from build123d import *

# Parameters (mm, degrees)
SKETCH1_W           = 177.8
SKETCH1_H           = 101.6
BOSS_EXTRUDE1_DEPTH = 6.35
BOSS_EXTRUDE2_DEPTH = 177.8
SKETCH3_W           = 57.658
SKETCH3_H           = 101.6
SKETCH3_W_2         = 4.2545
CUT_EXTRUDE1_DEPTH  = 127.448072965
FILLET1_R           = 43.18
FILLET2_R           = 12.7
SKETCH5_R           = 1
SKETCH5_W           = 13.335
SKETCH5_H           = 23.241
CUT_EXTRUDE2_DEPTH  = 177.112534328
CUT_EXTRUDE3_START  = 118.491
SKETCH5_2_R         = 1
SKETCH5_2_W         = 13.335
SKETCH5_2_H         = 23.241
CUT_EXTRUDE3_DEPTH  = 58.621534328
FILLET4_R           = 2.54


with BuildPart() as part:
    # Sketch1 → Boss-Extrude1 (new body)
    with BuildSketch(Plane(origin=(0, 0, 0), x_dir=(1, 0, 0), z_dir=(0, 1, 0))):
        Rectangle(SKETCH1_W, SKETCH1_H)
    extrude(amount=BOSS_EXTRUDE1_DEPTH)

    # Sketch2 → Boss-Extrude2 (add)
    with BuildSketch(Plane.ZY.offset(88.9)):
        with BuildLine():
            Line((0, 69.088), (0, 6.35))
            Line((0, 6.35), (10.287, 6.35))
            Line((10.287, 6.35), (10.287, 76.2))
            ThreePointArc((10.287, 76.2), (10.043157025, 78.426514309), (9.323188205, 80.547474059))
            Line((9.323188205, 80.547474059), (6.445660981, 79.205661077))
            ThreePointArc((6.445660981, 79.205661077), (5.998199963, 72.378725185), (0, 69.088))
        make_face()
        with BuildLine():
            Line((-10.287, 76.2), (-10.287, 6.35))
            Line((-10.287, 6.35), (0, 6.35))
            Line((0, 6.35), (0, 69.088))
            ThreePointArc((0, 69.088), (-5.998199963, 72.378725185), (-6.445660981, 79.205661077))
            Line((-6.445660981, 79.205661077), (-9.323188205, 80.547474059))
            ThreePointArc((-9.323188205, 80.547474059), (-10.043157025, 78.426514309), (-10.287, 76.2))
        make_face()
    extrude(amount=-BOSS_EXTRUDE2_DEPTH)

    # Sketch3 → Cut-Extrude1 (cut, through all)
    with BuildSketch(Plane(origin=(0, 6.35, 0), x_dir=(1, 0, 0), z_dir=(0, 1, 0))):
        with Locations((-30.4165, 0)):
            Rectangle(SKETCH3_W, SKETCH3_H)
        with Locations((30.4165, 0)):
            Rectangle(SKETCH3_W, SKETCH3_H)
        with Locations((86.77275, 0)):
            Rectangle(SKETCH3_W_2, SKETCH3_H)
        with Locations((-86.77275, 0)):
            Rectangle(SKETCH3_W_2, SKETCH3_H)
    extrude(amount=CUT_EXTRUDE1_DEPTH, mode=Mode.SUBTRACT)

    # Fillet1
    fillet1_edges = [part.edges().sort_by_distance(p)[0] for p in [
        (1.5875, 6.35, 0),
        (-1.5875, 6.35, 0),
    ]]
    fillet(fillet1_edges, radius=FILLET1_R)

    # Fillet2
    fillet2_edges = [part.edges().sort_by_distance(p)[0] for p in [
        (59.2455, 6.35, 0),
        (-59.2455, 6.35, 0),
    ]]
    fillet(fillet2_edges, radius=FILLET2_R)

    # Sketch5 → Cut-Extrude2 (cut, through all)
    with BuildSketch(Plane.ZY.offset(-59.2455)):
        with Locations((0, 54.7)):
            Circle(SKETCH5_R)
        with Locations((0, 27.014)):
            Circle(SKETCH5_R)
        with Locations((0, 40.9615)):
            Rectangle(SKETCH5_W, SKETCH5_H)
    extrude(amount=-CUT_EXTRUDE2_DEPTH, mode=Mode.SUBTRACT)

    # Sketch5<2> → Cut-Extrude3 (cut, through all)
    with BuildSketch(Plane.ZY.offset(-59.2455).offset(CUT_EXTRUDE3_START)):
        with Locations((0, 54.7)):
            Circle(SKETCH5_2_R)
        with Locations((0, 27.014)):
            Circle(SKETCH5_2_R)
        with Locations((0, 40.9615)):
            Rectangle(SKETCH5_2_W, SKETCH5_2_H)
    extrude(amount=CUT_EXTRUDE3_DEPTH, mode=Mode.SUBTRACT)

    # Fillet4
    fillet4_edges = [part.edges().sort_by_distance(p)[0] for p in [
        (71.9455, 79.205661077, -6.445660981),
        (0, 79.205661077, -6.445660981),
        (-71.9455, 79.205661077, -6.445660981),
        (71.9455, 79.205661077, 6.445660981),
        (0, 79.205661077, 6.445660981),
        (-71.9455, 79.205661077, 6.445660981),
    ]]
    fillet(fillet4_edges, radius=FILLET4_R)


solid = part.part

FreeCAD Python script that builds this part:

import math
import FreeCAD as App
import Part
import Sketcher
from FreeCAD import Vector
Q = App.Units.Quantity


def edges_at(feature, points):
    """Names of the edges that pass closest to the given points."""
    edges = feature.Shape.Edges
    near = lambda p: min(range(len(edges)), key=lambda i: edges[i].distToShape(Part.Vertex(*p))[0])
    return sorted({f"Edge{near(p) + 1}" for p in points})

doc = App.newDocument("Part")
params = doc.addObject("Spreadsheet::Sheet", "Params")
for row, (alias, value) in enumerate([
    ("sketch1_width", "7 in"),
    ("sketch1_height", "4 in"),
    ("pad1_length", "0.25 in"),
    ("sketch2_radius", "0.28 in"),
    ("sketch2_radius2", "0.405 in"),
    ("sketch2_width", "2.75 in"),
    ("pad2_length", "7 in"),
    ("sketch3_height", "4 in"),
    ("sketch3_width", "2.27 in"),
    ("fillet_radius", "1.7 in"),
    ("fillet2_radius", "0.5 in"),
    ("sketch4_width", "0.915 in"),
    ("sketch4_height", "0.525 in"),
    ("sketch5_width", "0.915 in"),
    ("sketch5_height", "0.525 in"),
    ("fillet3_radius", "0.1 in"),
], start=1):
    params.set(f"A{row}", alias)
    params.set(f"B{row}", "=" + value)
    params.setAlias(f"B{row}", alias)

body = doc.addObject("PartDesign::Body", "Body")

# Sketch on XZ plane
sketch1 = body.newObject("Sketcher::SketchObject", "Sketch")
sketch1.AttachmentSupport = (doc.getObject("XZ_Plane"), [""])
sketch1.MapMode = "FlatFace"
sketch1.addGeometry([
    Part.LineSegment(Vector(-88.9, -50.8, 0), Vector(-88.9, 50.8, 0)),
    Part.LineSegment(Vector(-88.9, 50.8, 0), Vector(88.9, 50.8, 0)),
    Part.LineSegment(Vector(88.9, 50.8, 0), Vector(88.9, -50.8, 0)),
    Part.LineSegment(Vector(88.9, -50.8, 0), Vector(-88.9, -50.8, 0)),
], False)
sketch1.addConstraint([
    Sketcher.Constraint("Coincident", 0, 2, 1, 1),
    Sketcher.Constraint("Coincident", 1, 2, 2, 1),
    Sketcher.Constraint("Coincident", 2, 2, 3, 1),
    Sketcher.Constraint("Coincident", 3, 2, 0, 1),
    Sketcher.Constraint("Vertical", 0),
    Sketcher.Constraint("Horizontal", 1),
    Sketcher.Constraint("Vertical", 2),
    Sketcher.Constraint("Horizontal", 3),
    Sketcher.Constraint("Symmetric", 0, 2, 2, 2, -1, 1),
    Sketcher.Constraint("DistanceX", 1, 1, 1, 2, Q("7 in")),
    Sketcher.Constraint("DistanceY", 0, 1, 0, 2, Q("4 in")),
])
sketch1.setExpression("Constraints[9]", "Params.sketch1_width")
sketch1.setExpression("Constraints[10]", "Params.sketch1_height")
pad1 = body.newObject("PartDesign::Pad", "Pad")
pad1.Profile = sketch1
pad1.setExpression("Length", "Params.pad1_length")
pad1.Reversed = True

# Sketch on YZ plane
sketch2 = body.newObject("Sketcher::SketchObject", "Sketch001")
sketch2.AttachmentSupport = (doc.getObject("YZ_Plane"), [""])
sketch2.MapMode = "FlatFace"
sketch2.AttachmentOffset = App.Placement(Vector(0, 0, -3.5 * 25.4), App.Rotation())
sketch2.addGeometry([
    Part.LineSegment(Vector(6.35, 10.287, 0), Vector(76.2, 10.287, 0)),  # 0
    Part.ArcOfCircle(Part.Circle(Vector(76.2, 0, 0), Vector(0, 0, 1), 10.287), math.radians(65), math.radians(90)),  # 1
    Part.LineSegment(Vector(80.547474, 9.323188, 0), Vector(79.205661, 6.445661, 0)),  # 2
    Part.ArcOfCircle(Part.Circle(Vector(76.2, 0, 0), Vector(0, 0, 1), 7.112), math.radians(65), math.radians(180)),  # 3
    Part.ArcOfCircle(Part.Circle(Vector(76.2, 0, 0), Vector(0, 0, 1), 7.112), math.radians(180), math.radians(295)),  # 4
    Part.LineSegment(Vector(79.205661, -6.445661, 0), Vector(80.547474, -9.323188, 0)),  # 5
    Part.ArcOfCircle(Part.Circle(Vector(76.2, 0, 0), Vector(0, 0, 1), 10.287), math.radians(-90), math.radians(-65)),  # 6
    Part.LineSegment(Vector(76.2, -10.287, 0), Vector(6.35, -10.287, 0)),  # 7
    Part.LineSegment(Vector(6.35, -10.287, 0), Vector(6.35, 10.287, 0)),  # 8
], False)
sketch2.addConstraint([
    Sketcher.Constraint("Tangent", 0, 2, 1, 2),
    Sketcher.Constraint("Coincident", 1, 1, 2, 1),
    Sketcher.Constraint("Coincident", 2, 2, 3, 1),
    Sketcher.Constraint("Tangent", 3, 2, 4, 1),
    Sketcher.Constraint("Coincident", 4, 2, 5, 1),
    Sketcher.Constraint("Coincident", 5, 2, 6, 2),
    Sketcher.Constraint("Tangent", 6, 1, 7, 1),
    Sketcher.Constraint("Coincident", 7, 2, 8, 1),
    Sketcher.Constraint("Coincident", 8, 2, 0, 1),
    Sketcher.Constraint("Horizontal", 0),
    Sketcher.Constraint("Horizontal", 7),
    Sketcher.Constraint("Vertical", 8),
    Sketcher.Constraint("Coincident", 3, 3, 1, 3),
    Sketcher.Constraint("Coincident", 6, 3, 1, 3),
    Sketcher.Constraint("Equal", 3, 4),
    Sketcher.Constraint("Equal", 1, 6),
    Sketcher.Constraint("Symmetric", 2, 2, 4, 2, -1),
    Sketcher.Constraint("PointOnObject", 3, 2, -1),
    Sketcher.Constraint("Vertical", 1, 1, 5, 2),
    Sketcher.Constraint("Radius", 3, Q("0.28 in")),
    Sketcher.Constraint("DistanceX", -1, 1, 1, 3, Q("3 in")),
    Sketcher.Constraint("Angle", 2, Q("-115 deg")),
    Sketcher.Constraint("Radius", 1, Q("0.405 in")),
    Sketcher.Constraint("DistanceX", 0, 1, 0, 2, Q("2.75 in")),
    Sketcher.Constraint("DistanceY", -1, 1, 1, 1, 9.323188),
])
sketch2.setExpression("Constraints[19]", "Params.sketch2_radius")
sketch2.setExpression("Constraints[22]", "Params.sketch2_radius2")
sketch2.setExpression("Constraints[23]", "Params.sketch2_width")
pad2 = body.newObject("PartDesign::Pad", "Pad001")
pad2.Profile = sketch2
pad2.setExpression("Length", "Params.pad2_length")

# Sketch on XZ plane
sketch3 = body.newObject("Sketcher::SketchObject", "Sketch002")
sketch3.AttachmentSupport = (doc.getObject("XZ_Plane"), [""])
sketch3.MapMode = "FlatFace"
sketch3.AttachmentOffset = App.Placement(Vector(0, 0, -0.25 * 25.4), App.Rotation())
sketch3.addGeometry([
    Part.LineSegment(Vector(-59.2455, -50.8, 0), Vector(-59.2455, 50.8, 0)),  # 0
    Part.LineSegment(Vector(-59.2455, 50.8, 0), Vector(-1.5875, 50.8, 0)),  # 1
    Part.LineSegment(Vector(-1.5875, 50.8, 0), Vector(-1.5875, -50.8, 0)),  # 2
    Part.LineSegment(Vector(-1.5875, -50.8, 0), Vector(-59.2455, -50.8, 0)),  # 3
    Part.LineSegment(Vector(1.5875, -50.8, 0), Vector(1.5875, 50.8, 0)),  # 4
    Part.LineSegment(Vector(1.5875, 50.8, 0), Vector(59.2455, 50.8, 0)),  # 5
    Part.LineSegment(Vector(59.2455, 50.8, 0), Vector(59.2455, -50.8, 0)),  # 6
    Part.LineSegment(Vector(59.2455, -50.8, 0), Vector(1.5875, -50.8, 0)),  # 7
    Part.LineSegment(Vector(84.6455, -50.8, 0), Vector(84.6455, 50.8, 0)),  # 8
    Part.LineSegment(Vector(84.6455, 50.8, 0), Vector(88.9, 50.8, 0)),  # 9
    Part.LineSegment(Vector(88.9, 50.8, 0), Vector(88.9, -50.8, 0)),  # 10
    Part.LineSegment(Vector(88.9, -50.8, 0), Vector(84.6455, -50.8, 0)),  # 11
    Part.LineSegment(Vector(-88.9, -50.8, 0), Vector(-88.9, 50.8, 0)),  # 12
    Part.LineSegment(Vector(-88.9, 50.8, 0), Vector(-84.6455, 50.8, 0)),  # 13
    Part.LineSegment(Vector(-84.6455, 50.8, 0), Vector(-84.6455, -50.8, 0)),  # 14
    Part.LineSegment(Vector(-84.6455, -50.8, 0), Vector(-88.9, -50.8, 0)),  # 15
], False)
sketch3.addConstraint([
    Sketcher.Constraint("Coincident", 0, 2, 1, 1),
    Sketcher.Constraint("Coincident", 1, 2, 2, 1),
    Sketcher.Constraint("Coincident", 2, 2, 3, 1),
    Sketcher.Constraint("Coincident", 3, 2, 0, 1),
    Sketcher.Constraint("Coincident", 4, 2, 5, 1),
    Sketcher.Constraint("Coincident", 5, 2, 6, 1),
    Sketcher.Constraint("Coincident", 6, 2, 7, 1),
    Sketcher.Constraint("Coincident", 7, 2, 4, 1),
    Sketcher.Constraint("Coincident", 8, 2, 9, 1),
    Sketcher.Constraint("Coincident", 9, 2, 10, 1),
    Sketcher.Constraint("Coincident", 10, 2, 11, 1),
    Sketcher.Constraint("Coincident", 11, 2, 8, 1),
    Sketcher.Constraint("Coincident", 12, 2, 13, 1),
    Sketcher.Constraint("Coincident", 13, 2, 14, 1),
    Sketcher.Constraint("Coincident", 14, 2, 15, 1),
    Sketcher.Constraint("Coincident", 15, 2, 12, 1),
    Sketcher.Constraint("Vertical", 0),
    Sketcher.Constraint("Horizontal", 1),
    Sketcher.Constraint("Vertical", 2),
    Sketcher.Constraint("Horizontal", 3),
    Sketcher.Constraint("Vertical", 4),
    Sketcher.Constraint("Horizontal", 5),
    Sketcher.Constraint("Vertical", 6),
    Sketcher.Constraint("Horizontal", 7),
    Sketcher.Constraint("Vertical", 8),
    Sketcher.Constraint("Horizontal", 9),
    Sketcher.Constraint("Vertical", 10),
    Sketcher.Constraint("Horizontal", 11),
    Sketcher.Constraint("Vertical", 12),
    Sketcher.Constraint("Horizontal", 13),
    Sketcher.Constraint("Vertical", 14),
    Sketcher.Constraint("Horizontal", 15),
    Sketcher.Constraint("Symmetric", 2, 2, 4, 2, -1, 1),
    Sketcher.Constraint("Symmetric", 0, 2, 6, 2, -1, 1),
    Sketcher.Constraint("Symmetric", 10, 2, 12, 2, -1, 1),
    Sketcher.Constraint("Symmetric", 8, 2, 14, 2, -1, 1),
    Sketcher.Constraint("Horizontal", 1, 2, 4, 2),
    Sketcher.Constraint("Horizontal", 5, 2, 8, 2),
    Sketcher.Constraint("Horizontal", 7, 2, 10, 2),
    Sketcher.Constraint("DistanceY", 0, 1, 0, 2, Q("4 in")),
    Sketcher.Constraint("DistanceX", 5, 2, 8, 2, Q("1 in")),
    Sketcher.Constraint("DistanceX", 1, 1, 1, 2, Q("2.27 in")),
    Sketcher.Constraint("DistanceX", -1, 1, 9, 2, Q("3.5 in")),
    Sketcher.Constraint("DistanceX", 9, 1, 9, 2, Q("0.1675 in")),
])
sketch3.setExpression("Constraints[39]", "Params.sketch3_height")
sketch3.setExpression("Constraints[41]", "Params.sketch3_width")
pocket1 = body.newObject("PartDesign::Pocket", "Pocket")
pocket1.Profile = sketch3
pocket1.Type = "ThroughAll"
doc.recompute()

fillet = body.newObject("PartDesign::Fillet", "Fillet")
fillet.Base = (pocket1, edges_at(pocket1, [(1.587, 6.35, 0), (-1.587, 6.35, 0)]))
fillet.setExpression("Radius", "Params.fillet_radius")
doc.recompute()

fillet2 = body.newObject("PartDesign::Fillet", "Fillet001")
fillet2.Base = (fillet, edges_at(fillet, [(59.245, 6.35, 0), (-59.245, 6.35, 0)]))
fillet2.setExpression("Radius", "Params.fillet2_radius")

# Sketch on YZ plane
sketch4 = body.newObject("Sketcher::SketchObject", "Sketch003")
sketch4.AttachmentSupport = (doc.getObject("YZ_Plane"), [""])
sketch4.MapMode = "FlatFace"
sketch4.AttachmentOffset = App.Placement(Vector(0, 0, 2.3325 * 25.4), App.Rotation())
sketch4.addGeometry([
    Part.Circle(Vector(54.7, 0, 0), Vector(0, 0, 1), 1),  # 0
    Part.Circle(Vector(27.014, 0, 0), Vector(0, 0, 1), 1),  # 1
    Part.LineSegment(Vector(52.582, -6.6675, 0), Vector(29.341, -6.6675, 0)),  # 2
    Part.LineSegment(Vector(29.341, -6.6675, 0), Vector(29.341, 6.6675, 0)),  # 3
    Part.LineSegment(Vector(29.341, 6.6675, 0), Vector(52.582, 6.6675, 0)),  # 4
    Part.LineSegment(Vector(52.582, 6.6675, 0), Vector(52.582, -6.6675, 0)),  # 5
], False)
sketch4.addConstraint([
    Sketcher.Constraint("Coincident", 2, 2, 3, 1),
    Sketcher.Constraint("Coincident", 3, 2, 4, 1),
    Sketcher.Constraint("Coincident", 4, 2, 5, 1),
    Sketcher.Constraint("Coincident", 5, 2, 2, 1),
    Sketcher.Constraint("Horizontal", 2),
    Sketcher.Constraint("Vertical", 3),
    Sketcher.Constraint("Horizontal", 4),
    Sketcher.Constraint("Vertical", 5),
    Sketcher.Constraint("Equal", 0, 1),
    Sketcher.Constraint("PointOnObject", 0, 3, -1),
    Sketcher.Constraint("PointOnObject", 1, 3, -1),
    Sketcher.Constraint("Diameter", 0, 2.0),
    Sketcher.Constraint("DistanceX", 2, 2, 2, 1, Q("0.915 in")),
    Sketcher.Constraint("DistanceY", 3, 1, 3, 2, Q("0.525 in")),
    Sketcher.Constraint("DistanceX", 1, 3, 0, 3, Q("1.09 in")),
    Sketcher.Constraint("DistanceY", 2, 2, -1, 1, Q("0.2625 in")),
    Sketcher.Constraint("DistanceX", -1, 1, 0, 3, 54.7),
    Sketcher.Constraint("DistanceX", -1, 1, 2, 2, 29.341),
])
sketch4.setExpression("Constraints[12]", "Params.sketch4_width")
sketch4.setExpression("Constraints[13]", "Params.sketch4_height")
pocket2 = body.newObject("PartDesign::Pocket", "Pocket001")
pocket2.Profile = sketch4
pocket2.Type = "ThroughAll"
pocket2.Reversed = True

# Sketch on YZ plane
sketch5 = body.newObject("Sketcher::SketchObject", "Sketch004")
sketch5.AttachmentSupport = (doc.getObject("YZ_Plane"), [""])
sketch5.MapMode = "FlatFace"
sketch5.AttachmentOffset = App.Placement(Vector(0, 0, -2.3325 * 25.4), App.Rotation())
sketch5.addGeometry([
    Part.Circle(Vector(54.7, 0, 0), Vector(0, 0, 1), 1),  # 0
    Part.Circle(Vector(27.014, 0, 0), Vector(0, 0, 1), 1),  # 1
    Part.LineSegment(Vector(52.582, -6.6675, 0), Vector(29.341, -6.6675, 0)),  # 2
    Part.LineSegment(Vector(29.341, -6.6675, 0), Vector(29.341, 6.6675, 0)),  # 3
    Part.LineSegment(Vector(29.341, 6.6675, 0), Vector(52.582, 6.6675, 0)),  # 4
    Part.LineSegment(Vector(52.582, 6.6675, 0), Vector(52.582, -6.6675, 0)),  # 5
], False)
sketch5.addConstraint([
    Sketcher.Constraint("Coincident", 2, 2, 3, 1),
    Sketcher.Constraint("Coincident", 3, 2, 4, 1),
    Sketcher.Constraint("Coincident", 4, 2, 5, 1),
    Sketcher.Constraint("Coincident", 5, 2, 2, 1),
    Sketcher.Constraint("Horizontal", 2),
    Sketcher.Constraint("Vertical", 3),
    Sketcher.Constraint("Horizontal", 4),
    Sketcher.Constraint("Vertical", 5),
    Sketcher.Constraint("Equal", 0, 1),
    Sketcher.Constraint("PointOnObject", 0, 3, -1),
    Sketcher.Constraint("PointOnObject", 1, 3, -1),
    Sketcher.Constraint("Diameter", 0, 2.0),
    Sketcher.Constraint("DistanceX", 2, 2, 2, 1, Q("0.915 in")),
    Sketcher.Constraint("DistanceY", 3, 1, 3, 2, Q("0.525 in")),
    Sketcher.Constraint("DistanceX", 1, 3, 0, 3, Q("1.09 in")),
    Sketcher.Constraint("DistanceY", 2, 2, -1, 1, Q("0.2625 in")),
    Sketcher.Constraint("DistanceX", -1, 1, 0, 3, 54.7),
    Sketcher.Constraint("DistanceX", -1, 1, 2, 2, 29.341),
])
sketch5.setExpression("Constraints[12]", "Params.sketch5_width")
sketch5.setExpression("Constraints[13]", "Params.sketch5_height")
pocket3 = body.newObject("PartDesign::Pocket", "Pocket002")
pocket3.Profile = sketch5
pocket3.Type = "ThroughAll"
doc.recompute()

fillet3 = body.newObject("PartDesign::Fillet", "Fillet002")
fillet3.Base = (pocket3, edges_at(pocket3, [
    (71.945, 79.206, -6.446),
    (0, 79.206, -6.446),
    (-71.945, 79.206, -6.446),
    (71.945, 79.206, 6.446),
    (0, 79.206, 6.446),
    (-71.945, 79.206, 6.446),
]))
fillet3.setExpression("Radius", "Params.fillet3_radius")

doc.recompute()
